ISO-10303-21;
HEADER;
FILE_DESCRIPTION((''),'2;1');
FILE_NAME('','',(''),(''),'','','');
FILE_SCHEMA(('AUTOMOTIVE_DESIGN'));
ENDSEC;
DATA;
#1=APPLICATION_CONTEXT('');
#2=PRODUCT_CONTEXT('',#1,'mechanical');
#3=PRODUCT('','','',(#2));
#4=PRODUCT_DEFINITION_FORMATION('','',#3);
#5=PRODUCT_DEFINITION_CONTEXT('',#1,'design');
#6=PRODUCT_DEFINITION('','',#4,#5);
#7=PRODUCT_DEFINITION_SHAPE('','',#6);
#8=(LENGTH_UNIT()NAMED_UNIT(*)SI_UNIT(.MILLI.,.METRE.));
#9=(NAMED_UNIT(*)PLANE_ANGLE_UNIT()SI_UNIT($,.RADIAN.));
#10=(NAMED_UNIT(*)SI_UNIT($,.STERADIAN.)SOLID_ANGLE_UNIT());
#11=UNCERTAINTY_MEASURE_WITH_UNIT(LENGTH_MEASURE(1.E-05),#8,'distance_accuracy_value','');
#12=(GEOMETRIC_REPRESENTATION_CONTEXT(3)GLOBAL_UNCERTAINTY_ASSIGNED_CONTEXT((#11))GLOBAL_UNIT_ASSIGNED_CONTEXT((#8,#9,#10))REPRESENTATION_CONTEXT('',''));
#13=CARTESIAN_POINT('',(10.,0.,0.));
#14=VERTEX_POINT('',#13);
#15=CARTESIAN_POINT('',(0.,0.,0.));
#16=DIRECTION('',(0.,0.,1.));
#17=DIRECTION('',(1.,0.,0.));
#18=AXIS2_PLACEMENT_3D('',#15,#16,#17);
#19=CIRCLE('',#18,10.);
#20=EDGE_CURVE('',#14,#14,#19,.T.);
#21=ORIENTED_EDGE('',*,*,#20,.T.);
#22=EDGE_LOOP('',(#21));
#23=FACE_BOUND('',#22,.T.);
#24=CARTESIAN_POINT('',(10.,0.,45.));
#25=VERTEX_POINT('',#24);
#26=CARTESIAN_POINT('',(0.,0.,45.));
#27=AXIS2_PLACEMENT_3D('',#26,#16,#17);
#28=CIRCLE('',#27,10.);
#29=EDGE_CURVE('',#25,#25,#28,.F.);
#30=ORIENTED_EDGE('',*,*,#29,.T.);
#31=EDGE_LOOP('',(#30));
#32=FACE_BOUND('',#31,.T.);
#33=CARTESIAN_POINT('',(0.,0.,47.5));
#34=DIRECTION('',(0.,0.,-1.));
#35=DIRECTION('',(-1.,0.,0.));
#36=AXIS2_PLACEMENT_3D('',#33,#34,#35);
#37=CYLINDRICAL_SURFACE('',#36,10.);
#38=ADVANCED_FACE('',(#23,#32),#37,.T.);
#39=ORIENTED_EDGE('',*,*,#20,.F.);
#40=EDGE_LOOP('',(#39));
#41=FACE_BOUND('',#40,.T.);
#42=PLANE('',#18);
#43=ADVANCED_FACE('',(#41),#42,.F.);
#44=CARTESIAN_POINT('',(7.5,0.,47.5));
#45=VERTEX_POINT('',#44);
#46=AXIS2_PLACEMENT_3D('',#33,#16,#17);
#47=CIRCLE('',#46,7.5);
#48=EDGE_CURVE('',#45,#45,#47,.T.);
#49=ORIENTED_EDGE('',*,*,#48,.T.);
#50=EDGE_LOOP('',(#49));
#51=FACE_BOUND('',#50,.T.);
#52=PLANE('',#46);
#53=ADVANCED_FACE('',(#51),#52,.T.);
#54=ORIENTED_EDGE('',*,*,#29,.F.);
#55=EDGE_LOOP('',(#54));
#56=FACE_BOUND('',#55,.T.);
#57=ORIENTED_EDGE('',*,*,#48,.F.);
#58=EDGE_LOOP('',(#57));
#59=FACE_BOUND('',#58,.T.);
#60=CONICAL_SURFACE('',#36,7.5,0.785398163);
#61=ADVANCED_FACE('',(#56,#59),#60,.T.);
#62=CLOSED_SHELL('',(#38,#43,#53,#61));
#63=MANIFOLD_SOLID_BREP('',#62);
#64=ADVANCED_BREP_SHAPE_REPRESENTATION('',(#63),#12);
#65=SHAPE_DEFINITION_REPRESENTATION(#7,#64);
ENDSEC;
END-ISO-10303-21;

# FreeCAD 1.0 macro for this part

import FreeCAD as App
import Part
import Sketcher
Q = App.Units.Quantity


def edges_at(feature, points):
    """Names of the edges that pass closest to the given points."""
    edges = feature.Shape.Edges
    near = lambda p: min(range(len(edges)), key=lambda i: edges[i].distToShape(Part.Vertex(*p))[0])
    return sorted({f"Edge{near(p) + 1}" for p in points})

doc = App.newDocument("Part")
body = doc.addObject("PartDesign::Body", "Body")

# Sketch on XY plane
sketch1 = doc.addObject("Sketcher::SketchObject", "Sketch")
body.addObject(sketch1)
sketch1.AttachmentSupport = (doc.XY_Plane, [""])
sketch1.MapMode = "FlatFace"
sketch1.addGeometry(Part.Circle(App.Vector(0, 0, 0), App.Vector(0, 0, 1), 10), False)
sketch1.addConstraint(Sketcher.Constraint("Coincident", 0, 3, -1, 1))
sketch1.addConstraint(Sketcher.Constraint("Diameter", 0, Q("20 mm")))
pad1 = doc.addObject("PartDesign::Pad", "Pad")
body.addObject(pad1)
pad1.Profile = sketch1
pad1.Length = 47.5
doc.recompute()

chamfer = doc.addObject("PartDesign::Chamfer", "Chamfer")
body.addObject(chamfer)
chamfer.Base = (pad1, edges_at(pad1, [(-10, 0, 47.5)]))
chamfer.Size = 2.5

doc.recompute()
